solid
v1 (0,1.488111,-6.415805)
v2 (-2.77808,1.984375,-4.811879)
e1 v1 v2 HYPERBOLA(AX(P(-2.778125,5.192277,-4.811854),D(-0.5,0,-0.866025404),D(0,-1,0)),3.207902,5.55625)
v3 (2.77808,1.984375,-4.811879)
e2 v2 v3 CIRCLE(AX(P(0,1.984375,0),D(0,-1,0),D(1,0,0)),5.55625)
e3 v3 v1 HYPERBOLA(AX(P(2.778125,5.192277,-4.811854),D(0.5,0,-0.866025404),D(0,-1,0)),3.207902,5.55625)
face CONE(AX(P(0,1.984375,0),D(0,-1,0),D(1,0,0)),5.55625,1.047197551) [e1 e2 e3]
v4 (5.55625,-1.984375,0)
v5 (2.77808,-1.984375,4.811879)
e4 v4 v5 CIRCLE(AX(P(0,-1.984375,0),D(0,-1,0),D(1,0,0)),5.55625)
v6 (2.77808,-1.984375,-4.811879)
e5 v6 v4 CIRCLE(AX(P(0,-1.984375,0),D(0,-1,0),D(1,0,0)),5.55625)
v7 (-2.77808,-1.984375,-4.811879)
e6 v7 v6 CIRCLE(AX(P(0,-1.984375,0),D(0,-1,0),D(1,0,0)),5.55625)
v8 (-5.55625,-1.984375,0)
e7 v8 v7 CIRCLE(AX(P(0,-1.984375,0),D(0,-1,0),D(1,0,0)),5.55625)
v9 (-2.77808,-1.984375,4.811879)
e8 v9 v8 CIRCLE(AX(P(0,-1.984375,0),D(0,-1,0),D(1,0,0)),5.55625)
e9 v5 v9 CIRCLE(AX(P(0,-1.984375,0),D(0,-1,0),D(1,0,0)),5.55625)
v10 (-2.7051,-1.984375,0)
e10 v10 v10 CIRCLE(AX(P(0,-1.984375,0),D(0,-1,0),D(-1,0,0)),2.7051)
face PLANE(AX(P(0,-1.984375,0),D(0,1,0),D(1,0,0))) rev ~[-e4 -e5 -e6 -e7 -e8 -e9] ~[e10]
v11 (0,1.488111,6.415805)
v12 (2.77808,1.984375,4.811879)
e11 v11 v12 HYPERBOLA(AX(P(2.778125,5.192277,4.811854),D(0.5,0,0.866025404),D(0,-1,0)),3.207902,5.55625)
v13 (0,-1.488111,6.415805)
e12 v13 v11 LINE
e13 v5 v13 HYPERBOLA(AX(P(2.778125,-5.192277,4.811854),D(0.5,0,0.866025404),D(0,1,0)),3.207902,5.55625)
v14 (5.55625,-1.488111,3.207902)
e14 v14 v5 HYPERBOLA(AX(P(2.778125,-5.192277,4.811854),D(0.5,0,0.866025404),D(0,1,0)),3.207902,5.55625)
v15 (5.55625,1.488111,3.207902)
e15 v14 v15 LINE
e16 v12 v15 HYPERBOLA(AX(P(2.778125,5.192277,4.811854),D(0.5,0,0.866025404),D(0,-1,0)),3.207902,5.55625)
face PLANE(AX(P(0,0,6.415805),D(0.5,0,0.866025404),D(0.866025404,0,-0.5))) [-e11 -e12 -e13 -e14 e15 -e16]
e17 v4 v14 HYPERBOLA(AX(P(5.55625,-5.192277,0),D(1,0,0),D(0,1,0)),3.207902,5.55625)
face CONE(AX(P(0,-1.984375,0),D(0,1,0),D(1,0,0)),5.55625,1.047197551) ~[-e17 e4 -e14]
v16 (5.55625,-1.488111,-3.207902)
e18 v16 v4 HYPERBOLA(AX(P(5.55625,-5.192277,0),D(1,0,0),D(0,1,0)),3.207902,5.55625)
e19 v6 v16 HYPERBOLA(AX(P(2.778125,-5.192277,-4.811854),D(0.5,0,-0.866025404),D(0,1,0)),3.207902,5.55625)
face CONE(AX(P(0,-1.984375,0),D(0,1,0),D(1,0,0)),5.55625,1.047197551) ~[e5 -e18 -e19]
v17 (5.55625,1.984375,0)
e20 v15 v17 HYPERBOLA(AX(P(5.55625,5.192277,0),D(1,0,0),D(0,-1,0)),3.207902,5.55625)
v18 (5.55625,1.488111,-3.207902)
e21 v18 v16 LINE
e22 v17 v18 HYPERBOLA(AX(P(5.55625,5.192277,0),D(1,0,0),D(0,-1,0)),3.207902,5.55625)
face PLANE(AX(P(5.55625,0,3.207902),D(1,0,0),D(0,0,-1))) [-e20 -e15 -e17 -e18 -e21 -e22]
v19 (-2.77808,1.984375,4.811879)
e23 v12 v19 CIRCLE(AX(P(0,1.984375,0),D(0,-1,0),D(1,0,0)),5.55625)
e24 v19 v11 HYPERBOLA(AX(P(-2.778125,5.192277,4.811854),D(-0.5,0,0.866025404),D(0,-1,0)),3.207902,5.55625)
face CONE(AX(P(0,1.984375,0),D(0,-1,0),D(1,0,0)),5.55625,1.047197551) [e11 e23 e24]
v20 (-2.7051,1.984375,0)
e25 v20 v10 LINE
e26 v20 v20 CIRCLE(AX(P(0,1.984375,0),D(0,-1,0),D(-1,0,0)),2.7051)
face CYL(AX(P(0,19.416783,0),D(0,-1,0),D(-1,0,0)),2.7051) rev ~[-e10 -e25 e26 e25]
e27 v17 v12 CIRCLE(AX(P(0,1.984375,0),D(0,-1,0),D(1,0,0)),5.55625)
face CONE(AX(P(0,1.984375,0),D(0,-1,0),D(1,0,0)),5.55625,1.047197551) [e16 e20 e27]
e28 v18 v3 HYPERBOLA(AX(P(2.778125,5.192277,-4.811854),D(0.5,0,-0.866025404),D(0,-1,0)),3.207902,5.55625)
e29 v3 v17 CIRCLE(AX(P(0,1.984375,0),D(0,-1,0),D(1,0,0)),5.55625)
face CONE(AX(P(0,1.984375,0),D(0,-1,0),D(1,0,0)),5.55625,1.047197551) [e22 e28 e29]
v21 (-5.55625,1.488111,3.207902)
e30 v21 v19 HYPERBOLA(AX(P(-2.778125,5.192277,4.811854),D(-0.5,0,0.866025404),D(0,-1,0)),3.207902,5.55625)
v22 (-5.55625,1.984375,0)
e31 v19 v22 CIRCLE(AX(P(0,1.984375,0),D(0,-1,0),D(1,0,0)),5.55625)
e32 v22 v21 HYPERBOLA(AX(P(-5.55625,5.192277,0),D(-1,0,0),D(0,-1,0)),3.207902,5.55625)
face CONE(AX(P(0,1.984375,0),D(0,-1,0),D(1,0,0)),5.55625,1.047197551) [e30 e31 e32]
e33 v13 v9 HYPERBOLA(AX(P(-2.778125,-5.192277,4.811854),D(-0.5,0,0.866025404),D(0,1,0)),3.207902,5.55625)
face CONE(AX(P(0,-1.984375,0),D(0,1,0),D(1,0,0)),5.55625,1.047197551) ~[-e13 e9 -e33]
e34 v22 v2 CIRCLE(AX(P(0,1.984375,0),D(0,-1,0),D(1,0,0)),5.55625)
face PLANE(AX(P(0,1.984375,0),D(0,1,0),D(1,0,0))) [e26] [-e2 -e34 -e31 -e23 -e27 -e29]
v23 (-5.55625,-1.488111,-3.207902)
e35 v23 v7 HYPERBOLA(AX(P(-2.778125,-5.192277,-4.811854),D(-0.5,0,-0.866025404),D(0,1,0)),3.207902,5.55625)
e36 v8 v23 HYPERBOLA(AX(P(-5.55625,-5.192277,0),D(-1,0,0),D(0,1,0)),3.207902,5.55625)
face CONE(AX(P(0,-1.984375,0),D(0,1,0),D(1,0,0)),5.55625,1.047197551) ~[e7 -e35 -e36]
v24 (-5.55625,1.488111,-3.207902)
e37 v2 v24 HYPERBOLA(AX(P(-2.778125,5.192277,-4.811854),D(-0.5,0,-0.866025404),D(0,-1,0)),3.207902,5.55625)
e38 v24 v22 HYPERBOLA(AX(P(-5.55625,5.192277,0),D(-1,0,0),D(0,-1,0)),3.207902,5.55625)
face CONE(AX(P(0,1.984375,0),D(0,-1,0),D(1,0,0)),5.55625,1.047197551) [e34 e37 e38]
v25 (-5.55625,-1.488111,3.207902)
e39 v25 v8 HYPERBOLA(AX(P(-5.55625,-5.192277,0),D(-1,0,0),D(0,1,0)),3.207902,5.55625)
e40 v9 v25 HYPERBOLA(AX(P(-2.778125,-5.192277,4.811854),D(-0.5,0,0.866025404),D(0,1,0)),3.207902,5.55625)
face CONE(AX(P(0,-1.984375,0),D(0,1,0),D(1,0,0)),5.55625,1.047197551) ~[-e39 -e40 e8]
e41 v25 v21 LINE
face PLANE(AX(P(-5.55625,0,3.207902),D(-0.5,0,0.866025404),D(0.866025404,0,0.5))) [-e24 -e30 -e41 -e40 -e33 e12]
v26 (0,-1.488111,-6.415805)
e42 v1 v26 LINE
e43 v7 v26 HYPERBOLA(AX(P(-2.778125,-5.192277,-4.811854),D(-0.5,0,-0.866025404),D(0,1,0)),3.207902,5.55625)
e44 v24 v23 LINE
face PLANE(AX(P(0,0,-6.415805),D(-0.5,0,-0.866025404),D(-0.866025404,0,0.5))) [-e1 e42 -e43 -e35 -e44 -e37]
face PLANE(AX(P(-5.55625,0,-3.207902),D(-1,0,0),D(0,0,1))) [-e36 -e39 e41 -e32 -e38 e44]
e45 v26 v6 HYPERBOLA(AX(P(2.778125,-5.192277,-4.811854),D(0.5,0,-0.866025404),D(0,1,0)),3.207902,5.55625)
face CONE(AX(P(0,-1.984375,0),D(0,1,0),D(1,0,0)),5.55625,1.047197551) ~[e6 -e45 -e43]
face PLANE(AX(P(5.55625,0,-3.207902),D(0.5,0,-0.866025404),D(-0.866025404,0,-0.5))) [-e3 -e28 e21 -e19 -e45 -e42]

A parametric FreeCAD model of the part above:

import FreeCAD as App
import Part
import Sketcher

V = App.Vector
Q = App.Units.Quantity

doc = App.newDocument("Part")
params = doc.addObject("Spreadsheet::Sheet", "Params")
for row, (alias, value) in enumerate([
    ("pad1_length", "0.15625 in"),
    ("sketch2_diameter", "0.213 in"),
    ("hole_diameter", "0.213 in"),
    ("sketch3_diameter", "0.4375 in"),
    ("pocket1_length", "4.96875 mm"),
    ("pocket1_taper", "60 deg"),
], start=1):
    params.set(f"A{row}", alias)
    params.set(f"B{row}", "=" + value)
    params.setAlias(f"B{row}", alias)

body = doc.addObject("PartDesign::Body", "Body")

# Sketch on XZ plane
sketch1 = body.newObject("Sketcher::SketchObject", "Sketch")
sketch1.AttachmentSupport = (doc.getObject("XZ_Plane"), [""])
sketch1.MapMode = "FlatFace"
sketch1.addGeometry([
    Part.LineSegment(V(-5.55625, -3.207902, 0), V(-5.55625, 3.207902, 0)),  # 0
    Part.LineSegment(V(-5.55625, 3.207902, 0), V(0, 6.415805, 0)),  # 1
    Part.LineSegment(V(0, 6.415805, 0), V(5.55625, 3.207902, 0)),  # 2
    Part.LineSegment(V(5.55625, 3.207902, 0), V(5.55625, -3.207902, 0)),  # 3
    Part.LineSegment(V(5.55625, -3.207902, 0), V(0, -6.415805, 0)),  # 4
    Part.LineSegment(V(0, -6.415805, 0), V(-5.55625, -3.207902, 0)),  # 5
], False)
sketch1.addConstraint([
    Sketcher.Constraint("Coincident", 0, 2, 1, 1),
    Sketcher.Constraint("Coincident", 1, 2, 2, 1),
    Sketcher.Constraint("Coincident", 2, 2, 3, 1),
    Sketcher.Constraint("Coincident", 3, 2, 4, 1),
    Sketcher.Constraint("Coincident", 4, 2, 5, 1),
    Sketcher.Constraint("Coincident", 5, 2, 0, 1),
    Sketcher.Constraint("Vertical", 0),
    Sketcher.Constraint("Vertical", 3),
    Sketcher.Constraint("Symmetric", 0, 2, 3, 2, -1, 1),
    Sketcher.Constraint("Symmetric", 1, 2, 4, 2, -1, 1),
    Sketcher.Constraint("PointOnObject", 1, 2, -2),
    Sketcher.Constraint("Parallel", 2, 5),
    Sketcher.Constraint("Horizontal", 0, 2, 2, 2),
    Sketcher.Constraint("Angle", 1, Q("30 deg")),
    Sketcher.Constraint("DistanceX", 0, 2, -1, 1, Q("0.21875 in")),
    Sketcher.Constraint("DistanceY", 0, 1, 0, 2, Q("6.415805 mm")),
])
pad1 = body.newObject("PartDesign::Pad", "Pad")
pad1.Profile = sketch1
pad1.setExpression("Length", "Params.pad1_length")
pad1.Midplane = True

# Sketch on XZ plane
sketch2 = body.newObject("Sketcher::SketchObject", "Sketch001")
sketch2.AttachmentSupport = (doc.getObject("XZ_Plane"), [""])
sketch2.MapMode = "FlatFace"
sketch2.AttachmentOffset = App.Placement(V(0, 0, -0.078125 * 25.4), App.Rotation())
sketch2.addGeometry(Part.Circle(V(0, 0, 0), V(0, 0, 1), 2.7051), False)
sketch2.addConstraint([
    Sketcher.Constraint("Coincident", 0, 3, -1, 1),
    Sketcher.Constraint("Diameter", 0, Q("0.213 in")),
])
sketch2.setExpression("Constraints[1]", "Params.sketch2_diameter")
doc.recompute()
hole = body.newObject("PartDesign::Hole", "Hole")
hole.Profile = sketch2
hole.ThreadType = "None"
hole.setExpression("Diameter", "Params.hole_diameter")
hole.DepthType = "ThroughAll"
hole.Reversed = True

# Sketch on XZ plane
sketch3 = body.newObject("Sketcher::SketchObject", "Sketch002")
sketch3.AttachmentSupport = (doc.getObject("XZ_Plane"), [""])
sketch3.MapMode = "FlatFace"
sketch3.AttachmentOffset = App.Placement(V(0, 0, -0.078125 * 25.4), App.Rotation())
sketch3.addGeometry([
    Part.LineSegment(V(-16.905, -17.765, 0), V(-16.905, 17.765, 0)),  # 0
    Part.LineSegment(V(-16.905, 17.765, 0), V(16.905, 17.765, 0)),  # 1
    Part.LineSegment(V(16.905, 17.765, 0), V(16.905, -17.765, 0)),  # 2
    Part.LineSegment(V(16.905, -17.765, 0), V(-16.905, -17.765, 0)),  # 3
    Part.Circle(V(0, 0, 0), V(0, 0, 1), 5.55625),  # 4
], False)
sketch3.addConstraint([
    Sketcher.Constraint("Coincident", 0, 2, 1, 1),
    Sketcher.Constraint("Coincident", 1, 2, 2, 1),
    Sketcher.Constraint("Coincident", 2, 2, 3, 1),
    Sketcher.Constraint("Coincident", 3, 2, 0, 1),
    Sketcher.Constraint("Vertical", 0),
    Sketcher.Constraint("Horizontal", 1),
    Sketcher.Constraint("Vertical", 2),
    Sketcher.Constraint("Horizontal", 3),
    Sketcher.Constraint("Coincident", 4, 3, -1, 1),
    Sketcher.Constraint("Symmetric", 0, 2, 2, 2, -1, 1),
    Sketcher.Constraint("Diameter", 4, Q("0.4375 in")),
    Sketcher.Constraint("DistanceX", 1, 1, 1, 2, Q("33.81 mm")),
    Sketcher.Constraint("DistanceY", 0, 1, 0, 2, Q("35.53 mm")),
])
sketch3.setExpression("Constraints[10]", "Params.sketch3_diameter")
pocket1 = body.newObject("PartDesign::Pocket", "Pocket")
pocket1.Profile = sketch3
pocket1.setExpression("Length", "Params.pocket1_length")
pocket1.Reversed = True
pocket1.setExpression("TaperAngle", "Params.pocket1_taper")
doc.recompute()

mirrored = body.newObject("PartDesign::Mirrored", "Mirrored")
mirrored.Originals = [pocket1]
mirrored.MirrorPlane = (doc.getObject("XZ_Plane"), [""])
body.Tip = mirrored

doc.recompute()
